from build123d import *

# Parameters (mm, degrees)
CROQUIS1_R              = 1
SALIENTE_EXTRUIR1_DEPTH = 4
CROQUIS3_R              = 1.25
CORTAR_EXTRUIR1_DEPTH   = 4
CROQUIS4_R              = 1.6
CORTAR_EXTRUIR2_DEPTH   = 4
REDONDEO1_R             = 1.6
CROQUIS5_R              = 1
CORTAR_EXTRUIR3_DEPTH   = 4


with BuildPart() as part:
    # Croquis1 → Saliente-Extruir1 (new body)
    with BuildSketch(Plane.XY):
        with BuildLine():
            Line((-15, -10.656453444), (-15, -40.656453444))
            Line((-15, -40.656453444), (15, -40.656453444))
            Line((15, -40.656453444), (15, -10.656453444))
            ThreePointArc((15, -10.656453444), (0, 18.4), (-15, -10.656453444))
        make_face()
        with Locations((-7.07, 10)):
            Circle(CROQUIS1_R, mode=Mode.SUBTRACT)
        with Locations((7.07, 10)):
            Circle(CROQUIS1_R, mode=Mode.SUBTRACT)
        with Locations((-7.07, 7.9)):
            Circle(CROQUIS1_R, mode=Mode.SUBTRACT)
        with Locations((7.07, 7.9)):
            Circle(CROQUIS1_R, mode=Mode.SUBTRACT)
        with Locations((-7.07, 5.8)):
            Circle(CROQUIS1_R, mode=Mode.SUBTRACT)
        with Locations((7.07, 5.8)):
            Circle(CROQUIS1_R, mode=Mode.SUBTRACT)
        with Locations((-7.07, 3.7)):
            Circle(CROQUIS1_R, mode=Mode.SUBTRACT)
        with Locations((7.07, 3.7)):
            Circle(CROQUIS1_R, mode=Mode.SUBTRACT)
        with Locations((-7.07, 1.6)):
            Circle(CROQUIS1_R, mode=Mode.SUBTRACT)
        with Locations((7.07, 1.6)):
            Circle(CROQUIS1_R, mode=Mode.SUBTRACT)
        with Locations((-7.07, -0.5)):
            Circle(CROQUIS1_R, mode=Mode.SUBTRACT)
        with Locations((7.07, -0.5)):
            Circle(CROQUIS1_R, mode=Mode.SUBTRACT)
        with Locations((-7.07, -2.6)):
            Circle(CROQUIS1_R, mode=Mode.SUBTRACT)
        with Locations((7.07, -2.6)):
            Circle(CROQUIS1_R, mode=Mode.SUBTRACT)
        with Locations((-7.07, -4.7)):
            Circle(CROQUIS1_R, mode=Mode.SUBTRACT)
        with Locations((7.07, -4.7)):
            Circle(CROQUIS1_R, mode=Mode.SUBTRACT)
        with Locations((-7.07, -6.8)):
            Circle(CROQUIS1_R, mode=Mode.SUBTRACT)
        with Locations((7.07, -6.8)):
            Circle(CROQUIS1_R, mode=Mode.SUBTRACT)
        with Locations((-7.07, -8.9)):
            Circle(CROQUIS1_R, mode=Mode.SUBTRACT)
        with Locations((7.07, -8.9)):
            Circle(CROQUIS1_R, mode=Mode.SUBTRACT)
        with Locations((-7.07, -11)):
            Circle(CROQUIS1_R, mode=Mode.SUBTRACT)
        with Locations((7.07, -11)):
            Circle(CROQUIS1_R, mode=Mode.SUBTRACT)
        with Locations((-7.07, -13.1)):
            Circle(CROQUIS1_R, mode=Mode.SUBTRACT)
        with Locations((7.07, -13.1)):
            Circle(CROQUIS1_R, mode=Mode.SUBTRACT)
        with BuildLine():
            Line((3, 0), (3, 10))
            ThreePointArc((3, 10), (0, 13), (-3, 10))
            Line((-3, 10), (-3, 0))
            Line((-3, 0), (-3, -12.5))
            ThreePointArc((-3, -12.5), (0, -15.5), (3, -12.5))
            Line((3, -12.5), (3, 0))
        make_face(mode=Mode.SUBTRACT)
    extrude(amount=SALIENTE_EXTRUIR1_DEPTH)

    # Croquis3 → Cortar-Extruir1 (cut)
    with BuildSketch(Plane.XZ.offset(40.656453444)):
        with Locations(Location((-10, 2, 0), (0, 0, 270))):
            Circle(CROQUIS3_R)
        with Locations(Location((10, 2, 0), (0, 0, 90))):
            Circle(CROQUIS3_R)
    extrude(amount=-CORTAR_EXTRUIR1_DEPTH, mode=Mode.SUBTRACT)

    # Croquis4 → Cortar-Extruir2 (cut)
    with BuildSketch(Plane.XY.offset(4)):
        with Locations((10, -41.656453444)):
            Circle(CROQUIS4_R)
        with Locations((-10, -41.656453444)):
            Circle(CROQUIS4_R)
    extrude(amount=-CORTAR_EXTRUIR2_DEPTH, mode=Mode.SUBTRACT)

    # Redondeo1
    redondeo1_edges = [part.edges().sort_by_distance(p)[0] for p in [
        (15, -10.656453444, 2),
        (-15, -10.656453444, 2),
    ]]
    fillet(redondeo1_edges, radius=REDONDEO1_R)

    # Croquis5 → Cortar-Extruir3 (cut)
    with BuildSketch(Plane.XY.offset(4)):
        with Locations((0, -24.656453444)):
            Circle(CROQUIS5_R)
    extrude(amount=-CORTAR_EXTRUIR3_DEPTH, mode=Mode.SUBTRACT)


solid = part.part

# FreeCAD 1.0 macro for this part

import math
import FreeCAD as App
import Part
import Sketcher

V = App.Vector
Q = App.Units.Quantity


def edges_at(feature, points):
    """Names of the edges that pass closest to the given points."""
    edges = feature.Shape.Edges
    near = lambda p: min(range(len(edges)), key=lambda i: edges[i].distToShape(Part.Vertex(*p))[0])
    return sorted({f"Edge{near(p) + 1}" for p in points})

doc = App.newDocument("Part")
params = doc.addObject("Spreadsheet::Sheet", "Params")
for row, (alias, value) in enumerate([
    ("sketch1_diameter", "2 mm"),
    ("sketch1_radius", "3 mm"),
    ("sketch1_radius2", "18.4 mm"),
    ("sketch1_width", "30 mm"),
    ("sketch1_height", "22.5 mm"),
    ("pad1_length", "4 mm"),
    ("sketch2_diameter", "2.5 mm"),
    ("pocket1_length", "4 mm"),
    ("sketch3_diameter", "3.2 mm"),
    ("pocket2_length", "4 mm"),
    ("fillet_radius", "1.6 mm"),
    ("sketch4_diameter", "2 mm"),
    ("pocket3_length", "4 mm"),
], start=1):
    params.set(f"A{row}", alias)
    params.set(f"B{row}", "=" + value)
    params.setAlias(f"B{row}", alias)

body = doc.addObject("PartDesign::Body", "Body")

sketch1 = body.newObject("Sketcher::SketchObject", "Sketch")
sketch1.AttachmentSupport = (doc.getObject("XY_Plane"), [""])
sketch1.MapMode = "FlatFace"
sketch1.addGeometry([
    Part.LineSegment(V(-15, -10.7, 0), V(-15, -40.7, 0)),
    Part.LineSegment(V(-15, -40.7, 0), V(15, -40.7, 0)),
    Part.LineSegment(V(15, -40.7, 0), V(15, -10.7, 0)),
    Part.ArcOfCircle(Part.Circle(V(0, 0, 0), V(0, 0, 1), 18.4), math.radians(-35), math.radians(215)),
    Part.Circle(V(-7.1, -13.1, 0), V(0, 0, 1), 1),
    Part.Circle(V(-7.1, -11, 0), V(0, 0, 1), 1),
    Part.Circle(V(-7.1, -8.9, 0), V(0, 0, 1), 1),
    Part.Circle(V(-7.1, -6.8, 0), V(0, 0, 1), 1),
    Part.Circle(V(-7.1, -4.7, 0), V(0, 0, 1), 1),
    Part.Circle(V(-7.1, -2.6, 0), V(0, 0, 1), 1),
    Part.Circle(V(7.1, -13.1, 0), V(0, 0, 1), 1),
    Part.Circle(V(7.1, -11, 0), V(0, 0, 1), 1),
    Part.Circle(V(7.1, -8.9, 0), V(0, 0, 1), 1),
    Part.Circle(V(7.1, -6.8, 0), V(0, 0, 1), 1),
    Part.Circle(V(7.1, -4.7, 0), V(0, 0, 1), 1),
    Part.Circle(V(7.1, -2.6, 0), V(0, 0, 1), 1),
    Part.Circle(V(-7.1, -0.5, 0), V(0, 0, 1), 1),
    Part.Circle(V(-7.1, 1.6, 0), V(0, 0, 1), 1),
    Part.Circle(V(-7.1, 3.7, 0), V(0, 0, 1), 1),
    Part.Circle(V(-7.1, 5.8, 0), V(0, 0, 1), 1),
    Part.Circle(V(-7.1, 7.9, 0), V(0, 0, 1), 1),
    Part.Circle(V(-7.1, 10, 0), V(0, 0, 1), 1),
    Part.ArcOfCircle(Part.Circle(V(0, 10, 0), V(0, 0, 1), 3), math.radians(0), math.radians(180)),
    Part.LineSegment(V(3, 10, 0), V(3, -12.5, 0)),
    Part.ArcOfCircle(Part.Circle(V(0, -12.5, 0), V(0, 0, 1), 3), math.radians(180), math.radians(360)),
    Part.LineSegment(V(-3, -12.5, 0), V(-3, 10, 0)),
    Part.Circle(V(7.1, -0.5, 0), V(0, 0, 1), 1),
    Part.Circle(V(7.1, 1.6, 0), V(0, 0, 1), 1),
    Part.Circle(V(7.1, 3.7, 0), V(0, 0, 1), 1),
    Part.Circle(V(7.1, 5.8, 0), V(0, 0, 1), 1),
    Part.Circle(V(7.1, 7.9, 0), V(0, 0, 1), 1),
    Part.Circle(V(7.1, 10, 0), V(0, 0, 1), 1),
], False)
sketch1.addConstraint([
    Sketcher.Constraint("Coincident", 0, 2, 1, 1),
    Sketcher.Constraint("Coincident", 1, 2, 2, 1),
    Sketcher.Constraint("Coincident", 2, 2, 3, 1),
    Sketcher.Constraint("Coincident", 3, 2, 0, 1),
    Sketcher.Constraint("Tangent", 22, 1, 23, 1),
    Sketcher.Constraint("Tangent", 23, 2, 24, 2),
    Sketcher.Constraint("Tangent", 24, 1, 25, 1),
    Sketcher.Constraint("Tangent", 25, 2, 22, 2),
    Sketcher.Constraint("Vertical", 0),
    Sketcher.Constraint("Horizontal", 1),
    Sketcher.Constraint("Vertical", 2),
    Sketcher.Constraint("Vertical", 23),
    Sketcher.Constraint("Vertical", 25),
    Sketcher.Constraint("Coincident", 3, 3, -1, 1),
    Sketcher.Constraint("Equal", 4, 5),
    Sketcher.Constraint("Equal", 5, 6),
    Sketcher.Constraint("Equal", 6, 7),
    Sketcher.Constraint("Equal", 7, 8),
    Sketcher.Constraint("Equal", 8, 9),
    Sketcher.Constraint("Equal", 9, 10),
    Sketcher.Constraint("Equal", 10, 11),
    Sketcher.Constraint("Equal", 11, 12),
    Sketcher.Constraint("Equal", 12, 13),
    Sketcher.Constraint("Equal", 13, 14),
    Sketcher.Constraint("Equal", 14, 15),
    Sketcher.Constraint("Equal", 15, 16),
    Sketcher.Constraint("Equal", 16, 17),
    Sketcher.Constraint("Equal", 17, 18),
    Sketcher.Constraint("Equal", 18, 19),
    Sketcher.Constraint("Equal", 19, 20),
    Sketcher.Constraint("Equal", 20, 21),
    Sketcher.Constraint("Equal", 21, 26),
    Sketcher.Constraint("Equal", 26, 27),
    Sketcher.Constraint("Equal", 27, 28),
    Sketcher.Constraint("Equal", 28, 29),
    Sketcher.Constraint("Equal", 29, 30),
    Sketcher.Constraint("Equal", 30, 31),
    Sketcher.Constraint("Symmetric", 4, 3, 10, 3, -2),
    Sketcher.Constraint("Symmetric", 5, 3, 11, 3, -2),
    Sketcher.Constraint("Symmetric", 6, 3, 12, 3, -2),
    Sketcher.Constraint("Symmetric", 7, 3, 13, 3, -2),
    Sketcher.Constraint("Symmetric", 8, 3, 14, 3, -2),
    Sketcher.Constraint("Symmetric", 9, 3, 15, 3, -2),
    Sketcher.Constraint("Symmetric", 16, 3, 26, 3, -2),
    Sketcher.Constraint("Symmetric", 17, 3, 27, 3, -2),
    Sketcher.Constraint("Symmetric", 18, 3, 28, 3, -2),
    Sketcher.Constraint("Symmetric", 19, 3, 29, 3, -2),
    Sketcher.Constraint("Symmetric", 20, 3, 30, 3, -2),
    Sketcher.Constraint("Symmetric", 21, 3, 31, 3, -2),
    Sketcher.Constraint("PointOnObject", 22, 3, -2),
    Sketcher.Constraint("Horizontal", 21, 3, 22, 3),
    Sketcher.Constraint("Horizontal", 2, 2, 3, 2),
    Sketcher.Constraint("Vertical", 4, 3, 5, 3),
    Sketcher.Constraint("Vertical", 5, 3, 6, 3),
    Sketcher.Constraint("Vertical", 6, 3, 7, 3),
    Sketcher.Constraint("Vertical", 7, 3, 8, 3),
    Sketcher.Constraint("Vertical", 8, 3, 9, 3),
    Sketcher.Constraint("Vertical", 9, 3, 16, 3),
    Sketcher.Constraint("Vertical", 16, 3, 17, 3),
    Sketcher.Constraint("Vertical", 17, 3, 18, 3),
    Sketcher.Constraint("Vertical", 18, 3, 19, 3),
    Sketcher.Constraint("Vertical", 19, 3, 20, 3),
    Sketcher.Constraint("Vertical", 20, 3, 21, 3),
    Sketcher.Constraint("Equal", 1, 0),
    Sketcher.Constraint("Diameter", 4, Q("2 mm")),
    Sketcher.Constraint("Radius", 22, Q("3 mm")),
    Sketcher.Constraint("Radius", 3, Q("18.4 mm")),
    Sketcher.Constraint("DistanceX", 1, 1, 1, 2, Q("30 mm")),
    Sketcher.Constraint("DistanceY", 23, 2, 23, 1, Q("22.5 mm")),
    Sketcher.Constraint("DistanceY", 5, 3, -1, 1, Q("11 mm")),
    Sketcher.Constraint("DistanceY", -1, 1, 21, 3, Q("10 mm")),
    Sketcher.Constraint("DistanceY", 4, 3, -1, 1, Q("13.1 mm")),
    Sketcher.Constraint("DistanceY", 6, 3, -1, 1, Q("8.9 mm")),
    Sketcher.Constraint("DistanceY", 7, 3, -1, 1, Q("6.8 mm")),
    Sketcher.Constraint("DistanceY", 8, 3, -1, 1, Q("4.7 mm")),
    Sketcher.Constraint("DistanceY", 9, 3, -1, 1, Q("2.6 mm")),
    Sketcher.Constraint("DistanceY", 16, 3, -1, 1, Q("0.5 mm")),
    Sketcher.Constraint("DistanceY", -1, 1, 17, 3, Q("1.6 mm")),
    Sketcher.Constraint("DistanceY", -1, 1, 18, 3, Q("3.7 mm")),
    Sketcher.Constraint("DistanceY", -1, 1, 19, 3, Q("5.8 mm")),
    Sketcher.Constraint("DistanceY", -1, 1, 20, 3, Q("7.9 mm")),
    Sketcher.Constraint("DistanceX", 4, 3, -1, 1, Q("7.07 mm")),
])
sketch1.setExpression("Constraints[64]", "Params.sketch1_diameter")
sketch1.setExpression("Constraints[65]", "Params.sketch1_radius")
sketch1.setExpression("Constraints[66]", "Params.sketch1_radius2")
sketch1.setExpression("Constraints[67]", "Params.sketch1_width")
sketch1.setExpression("Constraints[68]", "Params.sketch1_height")
pad1 = body.newObject("PartDesign::Pad", "Pad")
pad1.Profile = sketch1
pad1.setExpression("Length", "Params.pad1_length")

sketch2 = body.newObject("Sketcher::SketchObject", "Sketch001")
sketch2.AttachmentSupport = (doc.getObject("XZ_Plane"), [""])
sketch2.MapMode = "FlatFace"
sketch2.AttachmentOffset = App.Placement(V(0, 0, 40.656453), App.Rotation())
sketch2.addGeometry([
    Part.Circle(V(-10, 2, 0), V(0, 0, 1), 1.2),
    Part.Circle(V(10, 2, 0), V(0, 0, 1), 1.2),
], False)
sketch2.addConstraint([
    Sketcher.Constraint("Equal", 0, 1),
    Sketcher.Constraint("Symmetric", 0, 3, 1, 3, -2),
    Sketcher.Constraint("Diameter", 0, Q("2.5 mm")),
    Sketcher.Constraint("DistanceX", 0, 3, -1, 1, Q("10 mm")),
    Sketcher.Constraint("DistanceY", -1, 1, 0, 3, Q("2 mm")),
])
sketch2.setExpression("Constraints[2]", "Params.sketch2_diameter")
pocket1 = body.newObject("PartDesign::Pocket", "Pocket")
pocket1.Profile = sketch2
pocket1.setExpression("Length", "Params.pocket1_length")

sketch3 = body.newObject("Sketcher::SketchObject", "Sketch002")
sketch3.AttachmentSupport = (doc.getObject("XY_Plane"), [""])
sketch3.MapMode = "FlatFace"
sketch3.AttachmentOffset = App.Placement(V(0, 0, 4), App.Rotation())
sketch3.addGeometry([
    Part.Circle(V(10, -41.7, 0), V(0, 0, 1), 1.6),
    Part.Circle(V(-10, -41.7, 0), V(0, 0, 1), 1.6),
], False)
sketch3.addConstraint([
    Sketcher.Constraint("Equal", 0, 1),
    Sketcher.Constraint("Symmetric", 0, 3, 1, 3, -2),
    Sketcher.Constraint("Diameter", 0, Q("3.2 mm")),
    Sketcher.Constraint("DistanceX", -1, 1, 0, 3, Q("10 mm")),
    Sketcher.Constraint("DistanceY", 0, 3, -1, 1, Q("41.656453 mm")),
])
sketch3.setExpression("Constraints[2]", "Params.sketch3_diameter")
pocket2 = body.newObject("PartDesign::Pocket", "Pocket001")
pocket2.Profile = sketch3
pocket2.setExpression("Length", "Params.pocket2_length")
doc.recompute()

fillet = body.newObject("PartDesign::Fillet", "Fillet")
fillet.Base = (pocket2, edges_at(pocket2, [(15, -10.656, 2), (-15, -10.656, 2)]))
fillet.setExpression("Radius", "Params.fillet_radius")

sketch4 = body.newObject("Sketcher::SketchObject", "Sketch003")
sketch4.AttachmentSupport = (doc.getObject("XY_Plane"), [""])
sketch4.MapMode = "FlatFace"
sketch4.AttachmentOffset = App.Placement(V(0, 0, 4), App.Rotation())
sketch4.addGeometry(Part.Circle(V(0, -24.7, 0), V(0, 0, 1), 1), False)
sketch4.addConstraint([
    Sketcher.Constraint("PointOnObject", 0, 3, -2),
    Sketcher.Constraint("Diameter", 0, Q("2 mm")),
    Sketcher.Constraint("DistanceY", 0, 3, -1, 1, Q("24.656453 mm")),
])
sketch4.setExpression("Constraints[1]", "Params.sketch4_diameter")
pocket3 = body.newObject("PartDesign::Pocket", "Pocket002")
pocket3.Profile = sketch4
pocket3.setExpression("Length", "Params.pocket3_length")

doc.recompute()
